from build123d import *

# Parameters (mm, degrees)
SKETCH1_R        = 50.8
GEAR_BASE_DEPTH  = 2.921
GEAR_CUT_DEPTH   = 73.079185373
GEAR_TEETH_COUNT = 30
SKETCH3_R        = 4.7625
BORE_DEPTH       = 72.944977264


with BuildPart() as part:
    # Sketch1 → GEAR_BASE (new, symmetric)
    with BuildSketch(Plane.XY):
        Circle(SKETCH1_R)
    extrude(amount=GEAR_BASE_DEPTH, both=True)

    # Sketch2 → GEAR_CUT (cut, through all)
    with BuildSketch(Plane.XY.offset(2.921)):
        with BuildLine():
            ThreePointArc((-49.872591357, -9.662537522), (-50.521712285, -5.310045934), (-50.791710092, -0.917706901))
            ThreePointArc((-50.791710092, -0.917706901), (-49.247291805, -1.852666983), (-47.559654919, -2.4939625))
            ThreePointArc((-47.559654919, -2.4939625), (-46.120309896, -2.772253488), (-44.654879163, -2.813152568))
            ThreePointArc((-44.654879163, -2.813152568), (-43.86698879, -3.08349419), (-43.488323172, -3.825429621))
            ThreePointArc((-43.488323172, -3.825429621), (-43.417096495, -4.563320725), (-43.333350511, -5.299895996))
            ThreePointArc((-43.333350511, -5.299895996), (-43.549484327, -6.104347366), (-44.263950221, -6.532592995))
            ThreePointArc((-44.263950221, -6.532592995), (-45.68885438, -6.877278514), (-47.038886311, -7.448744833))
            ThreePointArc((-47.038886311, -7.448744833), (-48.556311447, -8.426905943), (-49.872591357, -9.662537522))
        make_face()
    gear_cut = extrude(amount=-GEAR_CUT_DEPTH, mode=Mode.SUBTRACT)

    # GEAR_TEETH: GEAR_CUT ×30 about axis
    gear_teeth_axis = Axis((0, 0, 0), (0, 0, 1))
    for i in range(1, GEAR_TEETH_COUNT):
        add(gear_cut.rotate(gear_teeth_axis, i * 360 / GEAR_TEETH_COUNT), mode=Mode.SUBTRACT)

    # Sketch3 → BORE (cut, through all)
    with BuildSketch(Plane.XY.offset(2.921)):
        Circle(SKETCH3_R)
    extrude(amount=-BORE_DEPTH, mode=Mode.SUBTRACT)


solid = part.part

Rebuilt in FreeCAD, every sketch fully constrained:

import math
import FreeCAD as App
import Part
import Sketcher
from FreeCAD import Vector
Q = App.Units.Quantity

doc = App.newDocument("Part")
params = doc.addObject("Spreadsheet::Sheet", "Params")
for row, (alias, value) in enumerate([
    ("sketch1_diameter", "4 in"),
    ("pad1_length", "0.23 in"),
    ("sketch2_radius", "2 in"),
    ("sketch2_radius2", "1.71875 in"),
    ("sketch3_diameter", "0.375 in"),
], start=1):
    params.set(f"A{row}", alias)
    params.set(f"B{row}", "=" + value)
    params.setAlias(f"B{row}", alias)

body = doc.addObject("PartDesign::Body", "Body")

sketch1 = body.newObject("Sketcher::SketchObject", "Sketch")
sketch1.AttachmentSupport = (doc.getObject("XY_Plane"), [""])
sketch1.MapMode = "FlatFace"
sketch1.addGeometry(Part.Circle(Vector(0, 0, 0), Vector(0, 0, 1), 50.8), False)
sketch1.addConstraint([
    Sketcher.Constraint("Coincident", 0, 3, -1, 1),
    Sketcher.Constraint("Diameter", 0, Q("4 in")),
])
sketch1.setExpression("Constraints[1]", "Params.sketch1_diameter")
pad1 = body.newObject("PartDesign::Pad", "Pad")
pad1.Profile = sketch1
pad1.setExpression("Length", "Params.pad1_length")
pad1.Midplane = True

sketch2 = body.newObject("Sketcher::SketchObject", "Sketch001")
sketch2.AttachmentSupport = (doc.getObject("XY_Plane"), [""])
sketch2.MapMode = "FlatFace"
sketch2.AttachmentOffset = App.Placement(Vector(0, 0, 0.115 * 25.4), App.Rotation())
sketch2.addGeometry([
    Part.ArcOfCircle(Part.Circle(Vector(0, 0, 0), Vector(0, 0, 1), 50.8), math.radians(-178.96489), math.radians(-169.03511)),
    Part.ArcOfCircle(Part.Circle(Vector(-42.414807, -16.288172, 0), Vector(0, 0, 1), 9.97585), math.radians(117.614958), math.radians(138.381518)),
    Part.ArcOfCircle(Part.Circle(Vector(-42.867581, -15.422645, 0), Vector(0, 0, 1), 8.999048), math.radians(98.926571), math.radians(117.614958)),
    Part.ArcOfCircle(Part.Circle(Vector(-44.436381, -5.434802, 0), Vector(0, 0, 1), 1.11125), math.radians(-81.073429), math.radians(6.972943)),
    Part.ArcOfCircle(Part.Circle(Vector(-0.000001, 0, 0), Vector(0, 0, 1), 43.656249), math.radians(-174.972943), math.radians(-173.027057)),
    Part.ArcOfCircle(Part.Circle(Vector(-44.595299, -3.922804, 0), Vector(0, 0, 1), 1.11125), math.radians(5.027056), math.radians(93.073429)),
    Part.ArcOfCircle(Part.Circle(Vector(-45.13737, 6.172951, 0), Vector(0, 0, 1), 8.999048), math.radians(-105.614958), math.radians(-86.926571)),
    Part.ArcOfCircle(Part.Circle(Vector(-44.874443, 7.113702, 0), Vector(0, 0, 1), 9.97585), math.radians(-126.381518), math.radians(-105.614958)),
], False)
sketch2.addConstraint([
    Sketcher.Constraint("Coincident", 0, 2, 1, 2),
    Sketcher.Constraint("Tangent", 1, 1, 2, 2),
    Sketcher.Constraint("Tangent", 2, 1, 3, 1),
    Sketcher.Constraint("Tangent", 3, 2, 4, 2),
    Sketcher.Constraint("Tangent", 4, 1, 5, 1),
    Sketcher.Constraint("Tangent", 5, 2, 6, 2),
    Sketcher.Constraint("Tangent", 6, 1, 7, 2),
    Sketcher.Constraint("Coincident", 7, 1, 0, 1),
    Sketcher.Constraint("Coincident", 0, 3, -1, 1),
    Sketcher.Constraint("Coincident", 4, 3, -1, 1),
    Sketcher.Constraint("Equal", 3, 5),
    Sketcher.Constraint("Equal", 2, 6),
    Sketcher.Constraint("Equal", 1, 7),
    Sketcher.Constraint("Radius", 0, Q("2 in")),
    Sketcher.Constraint("Radius", 4, Q("1.71875 in")),
    Sketcher.Constraint("Radius", 1, 9.97585),
    Sketcher.Constraint("Radius", 3, 1.11125),
    Sketcher.Constraint("DistanceX", 2, 3, -1, 1, Q("1.6877 in")),
    Sketcher.Constraint("Radius", 2, 8.999048),
    Sketcher.Constraint("DistanceX", 5, 3, -1, 1, 44.595299),
    Sketcher.Constraint("DistanceX", 3, 3, 2, 3, 1.5688),
    Sketcher.Constraint("DistanceY", 2, 3, 1, 1, 7.9739),
    Sketcher.Constraint("DistanceX", 6, 3, -1, 1, 45.13737),
    Sketcher.Constraint("DistanceY", 6, 3, 7, 3, 0.940751),
])
sketch2.setExpression("Constraints[13]", "Params.sketch2_radius")
sketch2.setExpression("Constraints[14]", "Params.sketch2_radius2")
pocket1 = body.newObject("PartDesign::Pocket", "Pocket")
pocket1.Profile = sketch2
pocket1.Type = "ThroughAll"
doc.recompute()

polarpattern = body.newObject("PartDesign::PolarPattern", "PolarPattern")
polarpattern.Originals = [pocket1]
polarpattern.Axis = (doc.getObject("Z_Axis"), [""])
polarpattern.Angle = 360
polarpattern.Occurrences = 30
body.Tip = polarpattern

sketch3 = body.newObject("Sketcher::SketchObject", "Sketch002")
sketch3.AttachmentSupport = (doc.getObject("XY_Plane"), [""])
sketch3.MapMode = "FlatFace"
sketch3.AttachmentOffset = App.Placement(Vector(0, 0, 0.115 * 25.4), App.Rotation())
sketch3.addGeometry(Part.Circle(Vector(0, 0, 0), Vector(0, 0, 1), 4.7625), False)
sketch3.addConstraint([
    Sketcher.Constraint("Coincident", 0, 3, -1, 1),
    Sketcher.Constraint("Diameter", 0, Q("0.375 in")),
])
sketch3.setExpression("Constraints[1]", "Params.sketch3_diameter")
pocket2 = body.newObject("PartDesign::Pocket", "Pocket001")
pocket2.Profile = sketch3
pocket2.Type = "ThroughAll"

doc.recompute()
